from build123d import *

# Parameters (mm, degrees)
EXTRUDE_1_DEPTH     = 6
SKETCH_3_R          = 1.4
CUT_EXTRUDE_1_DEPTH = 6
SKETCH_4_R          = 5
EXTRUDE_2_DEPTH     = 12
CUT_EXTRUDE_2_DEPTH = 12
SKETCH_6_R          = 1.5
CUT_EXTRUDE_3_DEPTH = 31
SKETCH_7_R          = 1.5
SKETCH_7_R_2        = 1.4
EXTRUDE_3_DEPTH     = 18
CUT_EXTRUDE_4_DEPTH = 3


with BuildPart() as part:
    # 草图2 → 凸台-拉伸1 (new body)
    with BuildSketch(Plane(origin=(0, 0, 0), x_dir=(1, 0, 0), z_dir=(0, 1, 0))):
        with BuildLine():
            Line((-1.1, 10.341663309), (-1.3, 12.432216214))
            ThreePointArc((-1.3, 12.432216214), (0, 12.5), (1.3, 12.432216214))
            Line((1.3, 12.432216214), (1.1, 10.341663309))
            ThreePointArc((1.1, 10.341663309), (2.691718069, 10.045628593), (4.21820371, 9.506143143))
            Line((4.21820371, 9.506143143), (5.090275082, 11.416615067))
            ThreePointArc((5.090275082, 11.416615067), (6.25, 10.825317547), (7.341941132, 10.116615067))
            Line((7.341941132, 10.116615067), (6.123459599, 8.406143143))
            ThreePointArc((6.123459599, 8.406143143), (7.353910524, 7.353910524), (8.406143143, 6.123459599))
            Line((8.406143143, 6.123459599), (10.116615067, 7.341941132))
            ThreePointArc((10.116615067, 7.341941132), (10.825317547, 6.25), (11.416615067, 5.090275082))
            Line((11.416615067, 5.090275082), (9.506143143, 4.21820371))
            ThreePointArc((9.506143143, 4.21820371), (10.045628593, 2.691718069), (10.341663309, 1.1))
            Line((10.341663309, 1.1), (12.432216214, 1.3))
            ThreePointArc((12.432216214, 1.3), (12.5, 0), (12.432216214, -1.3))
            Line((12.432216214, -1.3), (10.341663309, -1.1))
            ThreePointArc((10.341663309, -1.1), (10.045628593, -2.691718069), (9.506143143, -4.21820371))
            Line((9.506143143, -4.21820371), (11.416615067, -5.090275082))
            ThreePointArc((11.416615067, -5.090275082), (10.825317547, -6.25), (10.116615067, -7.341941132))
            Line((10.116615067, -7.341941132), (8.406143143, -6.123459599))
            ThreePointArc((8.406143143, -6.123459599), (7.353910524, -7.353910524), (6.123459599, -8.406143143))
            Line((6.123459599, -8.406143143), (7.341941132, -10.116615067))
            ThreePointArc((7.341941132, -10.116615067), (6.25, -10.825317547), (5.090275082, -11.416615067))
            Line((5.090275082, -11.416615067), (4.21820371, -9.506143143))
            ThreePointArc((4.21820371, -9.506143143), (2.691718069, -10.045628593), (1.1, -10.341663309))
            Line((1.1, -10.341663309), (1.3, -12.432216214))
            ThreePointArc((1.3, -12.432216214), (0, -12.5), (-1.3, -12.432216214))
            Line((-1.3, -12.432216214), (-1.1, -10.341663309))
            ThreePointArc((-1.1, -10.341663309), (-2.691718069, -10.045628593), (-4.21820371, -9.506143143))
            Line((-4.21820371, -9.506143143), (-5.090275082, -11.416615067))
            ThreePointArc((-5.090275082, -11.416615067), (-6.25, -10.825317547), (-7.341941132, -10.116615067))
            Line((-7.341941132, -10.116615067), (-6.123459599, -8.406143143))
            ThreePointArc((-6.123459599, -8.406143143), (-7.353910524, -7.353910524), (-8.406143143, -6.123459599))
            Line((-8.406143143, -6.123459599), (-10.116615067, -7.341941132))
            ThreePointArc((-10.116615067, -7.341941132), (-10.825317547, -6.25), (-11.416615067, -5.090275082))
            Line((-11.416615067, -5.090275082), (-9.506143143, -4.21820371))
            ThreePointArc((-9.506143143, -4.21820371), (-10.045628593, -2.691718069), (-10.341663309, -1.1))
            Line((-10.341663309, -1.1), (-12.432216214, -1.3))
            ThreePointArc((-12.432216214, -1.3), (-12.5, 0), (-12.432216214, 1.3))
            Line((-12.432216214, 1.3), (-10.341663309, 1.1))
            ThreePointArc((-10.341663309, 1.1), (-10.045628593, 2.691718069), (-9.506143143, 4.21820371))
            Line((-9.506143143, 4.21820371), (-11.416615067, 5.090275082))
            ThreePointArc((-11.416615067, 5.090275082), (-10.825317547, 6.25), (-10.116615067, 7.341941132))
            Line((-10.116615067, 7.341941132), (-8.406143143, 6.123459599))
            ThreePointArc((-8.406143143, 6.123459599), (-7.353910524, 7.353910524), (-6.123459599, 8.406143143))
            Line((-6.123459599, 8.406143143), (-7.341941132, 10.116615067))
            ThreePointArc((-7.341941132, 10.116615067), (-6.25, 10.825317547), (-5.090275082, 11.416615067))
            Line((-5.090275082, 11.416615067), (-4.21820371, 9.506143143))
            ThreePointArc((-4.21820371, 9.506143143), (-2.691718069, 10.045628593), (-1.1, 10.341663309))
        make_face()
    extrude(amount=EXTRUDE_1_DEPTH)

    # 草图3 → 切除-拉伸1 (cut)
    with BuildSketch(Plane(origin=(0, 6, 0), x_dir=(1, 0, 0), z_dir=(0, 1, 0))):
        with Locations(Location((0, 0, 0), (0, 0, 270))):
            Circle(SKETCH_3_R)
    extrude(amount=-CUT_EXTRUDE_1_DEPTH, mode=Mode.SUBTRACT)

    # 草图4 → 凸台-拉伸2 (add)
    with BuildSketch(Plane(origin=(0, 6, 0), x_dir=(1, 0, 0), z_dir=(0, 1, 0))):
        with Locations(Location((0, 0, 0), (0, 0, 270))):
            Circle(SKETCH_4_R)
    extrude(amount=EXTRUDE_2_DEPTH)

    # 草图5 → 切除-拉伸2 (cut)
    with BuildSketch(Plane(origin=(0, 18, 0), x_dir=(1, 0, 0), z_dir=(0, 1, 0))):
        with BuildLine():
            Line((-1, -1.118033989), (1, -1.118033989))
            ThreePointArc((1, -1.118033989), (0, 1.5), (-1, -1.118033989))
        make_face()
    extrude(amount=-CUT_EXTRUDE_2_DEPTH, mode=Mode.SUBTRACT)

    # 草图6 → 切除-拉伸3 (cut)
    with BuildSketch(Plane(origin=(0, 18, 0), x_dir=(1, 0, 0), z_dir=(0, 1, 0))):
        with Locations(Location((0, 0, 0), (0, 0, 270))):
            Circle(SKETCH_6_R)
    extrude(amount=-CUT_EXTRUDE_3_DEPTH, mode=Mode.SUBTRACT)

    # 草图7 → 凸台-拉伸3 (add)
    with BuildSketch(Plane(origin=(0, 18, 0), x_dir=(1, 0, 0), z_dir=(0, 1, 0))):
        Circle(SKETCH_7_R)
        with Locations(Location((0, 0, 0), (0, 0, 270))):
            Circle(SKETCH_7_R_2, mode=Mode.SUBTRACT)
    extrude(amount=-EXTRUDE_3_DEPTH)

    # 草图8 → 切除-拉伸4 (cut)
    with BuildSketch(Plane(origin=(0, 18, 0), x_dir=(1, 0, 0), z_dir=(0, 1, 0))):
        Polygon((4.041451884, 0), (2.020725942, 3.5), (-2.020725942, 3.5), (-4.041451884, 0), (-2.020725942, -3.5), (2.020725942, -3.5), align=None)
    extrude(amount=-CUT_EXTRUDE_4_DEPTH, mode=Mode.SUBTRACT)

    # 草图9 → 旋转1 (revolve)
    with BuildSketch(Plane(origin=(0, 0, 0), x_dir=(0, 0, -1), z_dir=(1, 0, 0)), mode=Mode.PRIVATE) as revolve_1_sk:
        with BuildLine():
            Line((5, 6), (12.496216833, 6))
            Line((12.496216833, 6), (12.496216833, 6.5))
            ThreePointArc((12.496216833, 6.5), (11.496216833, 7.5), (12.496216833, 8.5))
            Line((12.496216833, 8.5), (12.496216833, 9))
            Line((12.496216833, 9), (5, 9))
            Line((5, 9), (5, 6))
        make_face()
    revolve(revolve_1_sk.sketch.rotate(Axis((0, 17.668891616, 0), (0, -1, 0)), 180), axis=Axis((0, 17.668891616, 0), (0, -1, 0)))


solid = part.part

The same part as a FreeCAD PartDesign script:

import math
import FreeCAD as App
import Part
import Sketcher
from FreeCAD import Vector
Q = App.Units.Quantity

doc = App.newDocument("Part")
body = doc.addObject("PartDesign::Body", "Body")

sketch1 = body.newObject("Sketcher::SketchObject", "Sketch")
sketch1.AttachmentSupport = (doc.getObject("XZ_Plane"), [""])
sketch1.MapMode = "FlatFace"
sketch1.addGeometry([
    Part.LineSegment(Vector(-1.3, -12.432216, 0), Vector(-1.1, -10.341663, 0)),
    Part.ArcOfCircle(Part.Circle(Vector(0, 0, 0), Vector(0, 0, 1), 10.4), math.radians(-113.928513), math.radians(-96.071487)),
    Part.LineSegment(Vector(-4.218204, -9.506143, 0), Vector(-5.090275, -11.416615, 0)),
    Part.ArcOfCircle(Part.Circle(Vector(0, 0, 0), Vector(0, 0, 1), 12.5), math.radians(-125.969555), math.radians(-114.030445)),
    Part.LineSegment(Vector(-7.341941, -10.116615, 0), Vector(-6.12346, -8.406143, 0)),
    Part.ArcOfCircle(Part.Circle(Vector(0, 0, 0), Vector(0, 0, 1), 10.4), math.radians(-143.928513), math.radians(-126.071487)),
    Part.LineSegment(Vector(-8.406143, -6.12346, 0), Vector(-10.116615, -7.341941, 0)),
    Part.ArcOfCircle(Part.Circle(Vector(0, 0, 0), Vector(0, 0, 1), 12.5), math.radians(-155.969555), math.radians(-144.030445)),
    Part.LineSegment(Vector(-11.416615, -5.090275, 0), Vector(-9.506143, -4.218204, 0)),
    Part.ArcOfCircle(Part.Circle(Vector(0, 0, 0), Vector(0, 0, 1), 10.4), math.radians(-173.928513), math.radians(-156.071487)),
    Part.LineSegment(Vector(-10.341663, -1.1, 0), Vector(-12.432216, -1.3, 0)),
    Part.ArcOfCircle(Part.Circle(Vector(0, 0, 0), Vector(0, 0, 1), 12.5), math.radians(174.030445), math.radians(185.969555)),
    Part.LineSegment(Vector(-12.432216, 1.3, 0), Vector(-10.341663, 1.1, 0)),
    Part.ArcOfCircle(Part.Circle(Vector(0, 0, 0), Vector(0, 0, 1), 10.4), math.radians(156.071487), math.radians(173.928513)),
    Part.LineSegment(Vector(-9.506143, 4.218204, 0), Vector(-11.416615, 5.090275, 0)),
    Part.ArcOfCircle(Part.Circle(Vector(0, 0, 0), Vector(0, 0, 1), 12.5), math.radians(144.030445), math.radians(155.969555)),
    Part.LineSegment(Vector(-10.116615, 7.341941, 0), Vector(-8.406143, 6.12346, 0)),
    Part.ArcOfCircle(Part.Circle(Vector(0, 0, 0), Vector(0, 0, 1), 10.4), math.radians(126.071487), math.radians(143.928513)),
    Part.LineSegment(Vector(-6.12346, 8.406143, 0), Vector(-7.341941, 10.116615, 0)),
    Part.ArcOfCircle(Part.Circle(Vector(0, 0, 0), Vector(0, 0, 1), 12.5), math.radians(114.030445), math.radians(125.969555)),
    Part.LineSegment(Vector(-5.090275, 11.416615, 0), Vector(-4.218204, 9.506143, 0)),
    Part.ArcOfCircle(Part.Circle(Vector(0, 0, 0), Vector(0, 0, 1), 10.4), math.radians(96.071487), math.radians(113.928513)),
    Part.LineSegment(Vector(-1.1, 10.341663, 0), Vector(-1.3, 12.432216, 0)),
    Part.ArcOfCircle(Part.Circle(Vector(0, 0, 0), Vector(0, 0, 1), 12.5), math.radians(84.030445), math.radians(95.969555)),
    Part.LineSegment(Vector(1.3, 12.432216, 0), Vector(1.1, 10.341663, 0)),
    Part.ArcOfCircle(Part.Circle(Vector(0, 0, 0), Vector(0, 0, 1), 10.4), math.radians(66.071487), math.radians(83.928513)),
    Part.LineSegment(Vector(4.218204, 9.506143, 0), Vector(5.090275, 11.416615, 0)),
    Part.ArcOfCircle(Part.Circle(Vector(0, 0, 0), Vector(0, 0, 1), 12.5), math.radians(54.030445), math.radians(65.969555)),
    Part.LineSegment(Vector(7.341941, 10.116615, 0), Vector(6.12346, 8.406143, 0)),
    Part.ArcOfCircle(Part.Circle(Vector(0, 0, 0), Vector(0, 0, 1), 10.4), math.radians(36.071487), math.radians(53.928513)),
    Part.LineSegment(Vector(8.406143, 6.12346, 0), Vector(10.116615, 7.341941, 0)),
    Part.ArcOfCircle(Part.Circle(Vector(0, 0, 0), Vector(0, 0, 1), 12.5), math.radians(24.030445), math.radians(35.969555)),
    Part.LineSegment(Vector(11.416615, 5.090275, 0), Vector(9.506143, 4.218204, 0)),
    Part.ArcOfCircle(Part.Circle(Vector(0, 0, 0), Vector(0, 0, 1), 10.4), math.radians(6.071487), math.radians(23.928513)),
    Part.LineSegment(Vector(10.341663, 1.1, 0), Vector(12.432216, 1.3, 0)),
    Part.ArcOfCircle(Part.Circle(Vector(0, 0, 0), Vector(0, 0, 1), 12.5), math.radians(-5.969555), math.radians(5.969555)),
    Part.LineSegment(Vector(12.432216, -1.3, 0), Vector(10.341663, -1.1, 0)),
    Part.ArcOfCircle(Part.Circle(Vector(0, 0, 0), Vector(0, 0, 1), 10.4), math.radians(-23.928513), math.radians(-6.071487)),
    Part.LineSegment(Vector(9.506143, -4.218204, 0), Vector(11.416615, -5.090275, 0)),
    Part.ArcOfCircle(Part.Circle(Vector(0, 0, 0), Vector(0, 0, 1), 12.5), math.radians(-35.969555), math.radians(-24.030445)),
    Part.LineSegment(Vector(10.116615, -7.341941, 0), Vector(8.406143, -6.12346, 0)),
    Part.ArcOfCircle(Part.Circle(Vector(0, 0, 0), Vector(0, 0, 1), 10.4), math.radians(-53.928513), math.radians(-36.071487)),
    Part.LineSegment(Vector(6.12346, -8.406143, 0), Vector(7.341941, -10.116615, 0)),
    Part.ArcOfCircle(Part.Circle(Vector(0, 0, 0), Vector(0, 0, 1), 12.5), math.radians(-65.969555), math.radians(-54.030445)),
    Part.LineSegment(Vector(5.090275, -11.416615, 0), Vector(4.218204, -9.506143, 0)),
    Part.ArcOfCircle(Part.Circle(Vector(0, 0, 0), Vector(0, 0, 1), 10.4), math.radians(-83.928513), math.radians(-66.071487)),
    Part.LineSegment(Vector(1.1, -10.341663, 0), Vector(1.3, -12.432216, 0)),
    Part.ArcOfCircle(Part.Circle(Vector(0, 0, 0), Vector(0, 0, 1), 12.5), math.radians(-95.969555), math.radians(-84.030445)),
], False)
sketch1.addConstraint([
    Sketcher.Constraint("Coincident", 0, 2, 1, 2),
    Sketcher.Constraint("Coincident", 1, 1, 2, 1),
    Sketcher.Constraint("Coincident", 2, 2, 3, 2),
    Sketcher.Constraint("Coincident", 3, 1, 4, 1),
    Sketcher.Constraint("Coincident", 4, 2, 5, 2),
    Sketcher.Constraint("Coincident", 5, 1, 6, 1),
    Sketcher.Constraint("Coincident", 6, 2, 7, 2),
    Sketcher.Constraint("Coincident", 7, 1, 8, 1),
    Sketcher.Constraint("Coincident", 8, 2, 9, 2),
    Sketcher.Constraint("Coincident", 9, 1, 10, 1),
    Sketcher.Constraint("Coincident", 10, 2, 11, 2),
    Sketcher.Constraint("Coincident", 11, 1, 12, 1),
    Sketcher.Constraint("Coincident", 12, 2, 13, 2),
    Sketcher.Constraint("Coincident", 13, 1, 14, 1),
    Sketcher.Constraint("Coincident", 14, 2, 15, 2),
    Sketcher.Constraint("Coincident", 15, 1, 16, 1),
    Sketcher.Constraint("Coincident", 16, 2, 17, 2),
    Sketcher.Constraint("Coincident", 17, 1, 18, 1),
    Sketcher.Constraint("Coincident", 18, 2, 19, 2),
    Sketcher.Constraint("Coincident", 19, 1, 20, 1),
    Sketcher.Constraint("Coincident", 20, 2, 21, 2),
    Sketcher.Constraint("Coincident", 21, 1, 22, 1),
    Sketcher.Constraint("Coincident", 22, 2, 23, 2),
    Sketcher.Constraint("Coincident", 23, 1, 24, 1),
    Sketcher.Constraint("Coincident", 24, 2, 25, 2),
    Sketcher.Constraint("Coincident", 25, 1, 26, 1),
    Sketcher.Constraint("Coincident", 26, 2, 27, 2),
    Sketcher.Constraint("Coincident", 27, 1, 28, 1),
    Sketcher.Constraint("Coincident", 28, 2, 29, 2),
    Sketcher.Constraint("Coincident", 29, 1, 30, 1),
    Sketcher.Constraint("Coincident", 30, 2, 31, 2),
    Sketcher.Constraint("Coincident", 31, 1, 32, 1),
    Sketcher.Constraint("Coincident", 32, 2, 33, 2),
    Sketcher.Constraint("Coincident", 33, 1, 34, 1),
    Sketcher.Constraint("Coincident", 34, 2, 35, 2),
    Sketcher.Constraint("Coincident", 35, 1, 36, 1),
    Sketcher.Constraint("Coincident", 36, 2, 37, 2),
    Sketcher.Constraint("Coincident", 37, 1, 38, 1),
    Sketcher.Constraint("Coincident", 38, 2, 39, 2),
    Sketcher.Constraint("Coincident", 39, 1, 40, 1),
    Sketcher.Constraint("Coincident", 40, 2, 41, 2),
    Sketcher.Constraint("Coincident", 41, 1, 42, 1),
    Sketcher.Constraint("Coincident", 42, 2, 43, 2),
    Sketcher.Constraint("Coincident", 43, 1, 44, 1),
    Sketcher.Constraint("Coincident", 44, 2, 45, 2),
    Sketcher.Constraint("Coincident", 45, 1, 46, 1),
    Sketcher.Constraint("Coincident", 46, 2, 47, 2),
    Sketcher.Constraint("Coincident", 47, 1, 0, 1),
    Sketcher.Constraint("Coincident", 1, 3, -1, 1),
    Sketcher.Constraint("Coincident", 3, 3, -1, 1),
    Sketcher.Constraint("Coincident", 5, 3, -1, 1),
    Sketcher.Constraint("Coincident", 7, 3, -1, 1),
    Sketcher.Constraint("Coincident", 9, 3, -1, 1),
    Sketcher.Constraint("Coincident", 11, 3, -1, 1),
    Sketcher.Constraint("Coincident", 13, 3, -1, 1),
    Sketcher.Constraint("Coincident", 15, 3, -1, 1),
    Sketcher.Constraint("Coincident", 17, 3, -1, 1),
    Sketcher.Constraint("Coincident", 19, 3, -1, 1),
    Sketcher.Constraint("Coincident", 21, 3, -1, 1),
    Sketcher.Constraint("Coincident", 23, 3, -1, 1),
    Sketcher.Constraint("Coincident", 25, 3, -1, 1),
    Sketcher.Constraint("Coincident", 27, 3, -1, 1),
    Sketcher.Constraint("Coincident", 29, 3, -1, 1),
    Sketcher.Constraint("Coincident", 31, 3, -1, 1),
    Sketcher.Constraint("Coincident", 33, 3, -1, 1),
    Sketcher.Constraint("Coincident", 35, 3, -1, 1),
    Sketcher.Constraint("Coincident", 37, 3, -1, 1),
    Sketcher.Constraint("Coincident", 39, 3, -1, 1),
    Sketcher.Constraint("Coincident", 41, 3, -1, 1),
    Sketcher.Constraint("Coincident", 43, 3, -1, 1),
    Sketcher.Constraint("Coincident", 45, 3, -1, 1),
    Sketcher.Constraint("Coincident", 47, 3, -1, 1),
    Sketcher.Constraint("Equal", 1, 5),
    Sketcher.Constraint("Equal", 3, 7),
    Sketcher.Constraint("Equal", 5, 9),
    Sketcher.Constraint("Equal", 7, 11),
    Sketcher.Constraint("Equal", 9, 13),
    Sketcher.Constraint("Equal", 11, 15),
    Sketcher.Constraint("Equal", 13, 17),
    Sketcher.Constraint("Equal", 15, 19),
    Sketcher.Constraint("Equal", 17, 21),
    Sketcher.Constraint("Equal", 19, 23),
    Sketcher.Constraint("Equal", 21, 25),
    Sketcher.Constraint("Equal", 23, 27),
    Sketcher.Constraint("Equal", 25, 29),
    Sketcher.Constraint("Equal", 27, 31),
    Sketcher.Constraint("Equal", 29, 33),
    Sketcher.Constraint("Equal", 31, 35),
    Sketcher.Constraint("Equal", 33, 37),
    Sketcher.Constraint("Equal", 35, 39),
    Sketcher.Constraint("Equal", 37, 41),
    Sketcher.Constraint("Equal", 39, 43),
    Sketcher.Constraint("Equal", 41, 45),
    Sketcher.Constraint("Equal", 43, 47),
    Sketcher.Constraint("Perpendicular", 0, 12),
    Sketcher.Constraint("Perpendicular", 2, 14),
    Sketcher.Constraint("Perpendicular", 4, 16),
    Sketcher.Constraint("Perpendicular", 6, 18),
    Sketcher.Constraint("Perpendicular", 8, 20),
    Sketcher.Constraint("Perpendicular", 10, 22),
    Sketcher.Constraint("Perpendicular", 12, 24),
    Sketcher.Constraint("Perpendicular", 14, 26),
    Sketcher.Constraint("Perpendicular", 16, 28),
    Sketcher.Constraint("Perpendicular", 18, 30),
    Sketcher.Constraint("Perpendicular", 20, 32),
    Sketcher.Constraint("Perpendicular", 22, 34),
    Sketcher.Constraint("Perpendicular", 24, 36),
    Sketcher.Constraint("Perpendicular", 26, 38),
    Sketcher.Constraint("Perpendicular", 28, 40),
    Sketcher.Constraint("Perpendicular", 30, 42),
    Sketcher.Constraint("Perpendicular", 32, 44),
    Sketcher.Constraint("Perpendicular", 34, 46),
    Sketcher.Constraint("Horizontal", 22, 2, 23, 1),
    Sketcher.Constraint("Horizontal", 21, 1, 24, 2),
    Sketcher.Constraint("Horizontal", 20, 2, 25, 1),
    Sketcher.Constraint("Horizontal", 19, 1, 26, 2),
    Sketcher.Constraint("Horizontal", 18, 2, 27, 1),
    Sketcher.Constraint("Horizontal", 17, 1, 28, 2),
    Sketcher.Constraint("Horizontal", 16, 2, 29, 1),
    Sketcher.Constraint("Horizontal", 14, 2, 31, 1),
    Sketcher.Constraint("Horizontal", 12, 2, 33, 1),
    Sketcher.Constraint("Horizontal", 10, 2, 35, 1),
    Sketcher.Constraint("Horizontal", 8, 2, 37, 1),
    Sketcher.Constraint("Horizontal", 6, 2, 39, 1),
    Sketcher.Constraint("Horizontal", 4, 2, 41, 1),
    Sketcher.Constraint("Horizontal", 2, 2, 43, 1),
    Sketcher.Constraint("Horizontal", 0, 2, 45, 1),
    Sketcher.Constraint("Vertical", 10, 2, 11, 1),
    Sketcher.Constraint("Vertical", 8, 2, 13, 1),
    Sketcher.Constraint("Vertical", 6, 2, 15, 1),
    Sketcher.Constraint("Vertical", 4, 2, 17, 1),
    Sketcher.Constraint("Vertical", 2, 2, 19, 1),
    Sketcher.Constraint("Vertical", 0, 2, 21, 1),
    Sketcher.Constraint("Equal", 0, 2),
    Sketcher.Constraint("Equal", 2, 4),
    Sketcher.Constraint("Radius", 1, 10.4),
    Sketcher.Constraint("Radius", 3, 12.5),
    Sketcher.Constraint("DistanceX", 0, 2, -1, 1, 1.1),
    Sketcher.Constraint("DistanceY", 9, 1, -1, 1, 1.1),
    Sketcher.Constraint("DistanceY", 10, 2, -1, 1, 1.3),
    Sketcher.Constraint("DistanceX", 3, 1, -1, 1, 7.341941),
    Sketcher.Constraint("DistanceY", 5, 1, -1, 1, 6.12346),
    Sketcher.Constraint("DistanceX", 1, 1, -1, 1, 4.218204),
    Sketcher.Constraint("DistanceX", 7, 1, -1, 1, 11.416615),
])
pad1 = body.newObject("PartDesign::Pad", "Pad")
pad1.Profile = sketch1
pad1.Length = 6
pad1.Reversed = True

sketch2 = body.newObject("Sketcher::SketchObject", "Sketch001")
sketch2.AttachmentSupport = (doc.getObject("XZ_Plane"), [""])
sketch2.MapMode = "FlatFace"
sketch2.AttachmentOffset = App.Placement(Vector(0, 0, -6), App.Rotation())
sketch2.addGeometry(Part.Circle(Vector(0, 0, 0), Vector(0, 0, 1), 1.4), False)
sketch2.addConstraint([
    Sketcher.Constraint("Coincident", 0, 3, -1, 1),
    Sketcher.Constraint("Diameter", 0, 2.8),
])
pocket1 = body.newObject("PartDesign::Pocket", "Pocket")
pocket1.Profile = sketch2
pocket1.Length = 6
pocket1.Reversed = True

sketch3 = body.newObject("Sketcher::SketchObject", "Sketch002")
sketch3.AttachmentSupport = (doc.getObject("XZ_Plane"), [""])
sketch3.MapMode = "FlatFace"
sketch3.AttachmentOffset = App.Placement(Vector(0, 0, -6), App.Rotation())
sketch3.addGeometry(Part.Circle(Vector(0, 0, 0), Vector(0, 0, 1), 5), False)
sketch3.addConstraint([
    Sketcher.Constraint("Coincident", 0, 3, -1, 1),
    Sketcher.Constraint("Diameter", 0, 10.0),
])
pad2 = body.newObject("PartDesign::Pad", "Pad001")
pad2.Profile = sketch3
pad2.Length = 12
pad2.Reversed = True

sketch4 = body.newObject("Sketcher::SketchObject", "Sketch003")
sketch4.AttachmentSupport = (doc.getObject("XZ_Plane"), [""])
sketch4.MapMode = "FlatFace"
sketch4.AttachmentOffset = App.Placement(Vector(0, 0, -18), App.Rotation())
sketch4.addGeometry([
    Part.LineSegment(Vector(-1, 1.118034, 0), Vector(1, 1.118034, 0)),
    Part.ArcOfCircle(Part.Circle(Vector(0, 0, 0), Vector(0, 0, 1), 1.5), math.radians(131.810315), math.radians(408.189685)),
], False)
sketch4.addConstraint([
    Sketcher.Constraint("Coincident", 0, 1, 1, 1),
    Sketcher.Constraint("Coincident", 1, 2, 0, 2),
    Sketcher.Constraint("Horizontal", 0),
    Sketcher.Constraint("Coincident", 1, 3, -1, 1),
    Sketcher.Constraint("Radius", 1, 1.5),
    Sketcher.Constraint("DistanceX", 0, 1, 0, 2, 2.0),
])
pocket2 = body.newObject("PartDesign::Pocket", "Pocket001")
pocket2.Profile = sketch4
pocket2.Length = 12
pocket2.Reversed = True

sketch5 = body.newObject("Sketcher::SketchObject", "Sketch004")
sketch5.AttachmentSupport = (doc.getObject("XZ_Plane"), [""])
sketch5.MapMode = "FlatFace"
sketch5.AttachmentOffset = App.Placement(Vector(0, 0, -18), App.Rotation())
sketch5.addGeometry(Part.Circle(Vector(0, 0, 0), Vector(0, 0, 1), 1.5), False)
sketch5.addConstraint([
    Sketcher.Constraint("Coincident", 0, 3, -1, 1),
    Sketcher.Constraint("Diameter", 0, 3.0),
])
pocket3 = body.newObject("PartDesign::Pocket", "Pocket002")
pocket3.Profile = sketch5
pocket3.Length = 31
pocket3.Reversed = True

sketch6 = body.newObject("Sketcher::SketchObject", "Sketch005")
sketch6.AttachmentSupport = (doc.getObject("XZ_Plane"), [""])
sketch6.MapMode = "FlatFace"
sketch6.AttachmentOffset = App.Placement(Vector(0, 0, -18), App.Rotation())
sketch6.addGeometry([
    Part.Circle(Vector(0, 0, 0), Vector(0, 0, 1), 1.5),
    Part.Circle(Vector(0, 0, 0), Vector(0, 0, 1), 1.4),
], False)
sketch6.addConstraint([
    Sketcher.Constraint("Coincident", 0, 3, -1, 1),
    Sketcher.Constraint("Coincident", 1, 3, -1, 1),
    Sketcher.Constraint("Diameter", 0, 3.0),
    Sketcher.Constraint("Diameter", 1, 2.8),
])
pad3 = body.newObject("PartDesign::Pad", "Pad002")
pad3.Profile = sketch6
pad3.Length = 18

sketch7 = body.newObject("Sketcher::SketchObject", "Sketch006")
sketch7.AttachmentSupport = (doc.getObject("XZ_Plane"), [""])
sketch7.MapMode = "FlatFace"
sketch7.AttachmentOffset = App.Placement(Vector(0, 0, -18), App.Rotation())
sketch7.addGeometry([
    Part.LineSegment(Vector(4.041452, 0, 0), Vector(2.020726, -3.5, 0)),
    Part.LineSegment(Vector(2.020726, -3.5, 0), Vector(-2.020726, -3.5, 0)),
    Part.LineSegment(Vector(-2.020726, -3.5, 0), Vector(-4.041452, 0, 0)),
    Part.LineSegment(Vector(-4.041452, 0, 0), Vector(-2.020726, 3.5, 0)),
    Part.LineSegment(Vector(-2.020726, 3.5, 0), Vector(2.020726, 3.5, 0)),
    Part.LineSegment(Vector(2.020726, 3.5, 0), Vector(4.041452, 0, 0)),
], False)
sketch7.addConstraint([
    Sketcher.Constraint("Coincident", 0, 2, 1, 1),
    Sketcher.Constraint("Coincident", 1, 2, 2, 1),
    Sketcher.Constraint("Coincident", 2, 2, 3, 1),
    Sketcher.Constraint("Coincident", 3, 2, 4, 1),
    Sketcher.Constraint("Coincident", 4, 2, 5, 1),
    Sketcher.Constraint("Coincident", 5, 2, 0, 1),
    Sketcher.Constraint("Horizontal", 1),
    Sketcher.Constraint("Horizontal", 4),
    Sketcher.Constraint("Symmetric", 0, 2, 3, 2, -1, 1),
    Sketcher.Constraint("Symmetric", 2, 2, 5, 2, -1, 1),
    Sketcher.Constraint("PointOnObject", 2, 2, -1),
    Sketcher.Constraint("Parallel", 2, 5),
    Sketcher.Constraint("Vertical", 1, 2, 3, 2),
    Sketcher.Constraint("Angle", 0, Q("-120 deg")),
    Sketcher.Constraint("DistanceY", 1, 2, 3, 2, 7.0),
    Sketcher.Constraint("DistanceX", 1, 2, 1, 1, 4.041452),
])
pocket4 = body.newObject("PartDesign::Pocket", "Pocket003")
pocket4.Profile = sketch7
pocket4.Length = 3
pocket4.Reversed = True

sketch8 = body.newObject("Sketcher::SketchObject", "Sketch007")
sketch8.AttachmentSupport = (doc.getObject("YZ_Plane"), [""])
sketch8.MapMode = "FlatFace"
sketch8.addGeometry([
    Part.LineSegment(Vector(6, -5, 0), Vector(6, -12.496217, 0)),
    Part.LineSegment(Vector(6, -12.496217, 0), Vector(6.5, -12.496217, 0)),
    Part.ArcOfCircle(Part.Circle(Vector(7.5, -12.496217, 0), Vector(0, 0, 1), 1), math.radians(0), math.radians(180)),
    Part.LineSegment(Vector(8.5, -12.496217, 0), Vector(9, -12.496217, 0)),
    Part.LineSegment(Vector(9, -12.496217, 0), Vector(9, -5, 0)),
    Part.LineSegment(Vector(9, -5, 0), Vector(6, -5, 0)),
], False)
sketch8.addConstraint([
    Sketcher.Constraint("Coincident", 0, 2, 1, 1),
    Sketcher.Constraint("Coincident", 1, 2, 2, 2),
    Sketcher.Constraint("Coincident", 2, 1, 3, 1),
    Sketcher.Constraint("Coincident", 3, 2, 4, 1),
    Sketcher.Constraint("Coincident", 4, 2, 5, 1),
    Sketcher.Constraint("Coincident", 5, 2, 0, 1),
    Sketcher.Constraint("Vertical", 0),
    Sketcher.Constraint("Horizontal", 1),
    Sketcher.Constraint("Horizontal", 3),
    Sketcher.Constraint("Vertical", 4),
    Sketcher.Constraint("Horizontal", 5),
    Sketcher.Constraint("Horizontal", 2, 3, 0, 2),
    Sketcher.Constraint("Horizontal", 1, 2, 2, 1),
    Sketcher.Constraint("Equal", 1, 3),
    Sketcher.Constraint("Radius", 2, 1.0),
    Sketcher.Constraint("DistanceX", 5, 2, 5, 1, 3.0),
    Sketcher.Constraint("DistanceX", -1, 1, 0, 2, 6.0),
    Sketcher.Constraint("DistanceY", 4, 2, -1, 1, 5.0),
    Sketcher.Constraint("DistanceY", 0, 2, 0, 1, 7.496217),
])
revolution = body.newObject("PartDesign::Revolution", "Revolution")
revolution.Profile = sketch8
revolution.ReferenceAxis = (sketch8, ["H_Axis"])
revolution.Angle = 360

doc.recompute()
